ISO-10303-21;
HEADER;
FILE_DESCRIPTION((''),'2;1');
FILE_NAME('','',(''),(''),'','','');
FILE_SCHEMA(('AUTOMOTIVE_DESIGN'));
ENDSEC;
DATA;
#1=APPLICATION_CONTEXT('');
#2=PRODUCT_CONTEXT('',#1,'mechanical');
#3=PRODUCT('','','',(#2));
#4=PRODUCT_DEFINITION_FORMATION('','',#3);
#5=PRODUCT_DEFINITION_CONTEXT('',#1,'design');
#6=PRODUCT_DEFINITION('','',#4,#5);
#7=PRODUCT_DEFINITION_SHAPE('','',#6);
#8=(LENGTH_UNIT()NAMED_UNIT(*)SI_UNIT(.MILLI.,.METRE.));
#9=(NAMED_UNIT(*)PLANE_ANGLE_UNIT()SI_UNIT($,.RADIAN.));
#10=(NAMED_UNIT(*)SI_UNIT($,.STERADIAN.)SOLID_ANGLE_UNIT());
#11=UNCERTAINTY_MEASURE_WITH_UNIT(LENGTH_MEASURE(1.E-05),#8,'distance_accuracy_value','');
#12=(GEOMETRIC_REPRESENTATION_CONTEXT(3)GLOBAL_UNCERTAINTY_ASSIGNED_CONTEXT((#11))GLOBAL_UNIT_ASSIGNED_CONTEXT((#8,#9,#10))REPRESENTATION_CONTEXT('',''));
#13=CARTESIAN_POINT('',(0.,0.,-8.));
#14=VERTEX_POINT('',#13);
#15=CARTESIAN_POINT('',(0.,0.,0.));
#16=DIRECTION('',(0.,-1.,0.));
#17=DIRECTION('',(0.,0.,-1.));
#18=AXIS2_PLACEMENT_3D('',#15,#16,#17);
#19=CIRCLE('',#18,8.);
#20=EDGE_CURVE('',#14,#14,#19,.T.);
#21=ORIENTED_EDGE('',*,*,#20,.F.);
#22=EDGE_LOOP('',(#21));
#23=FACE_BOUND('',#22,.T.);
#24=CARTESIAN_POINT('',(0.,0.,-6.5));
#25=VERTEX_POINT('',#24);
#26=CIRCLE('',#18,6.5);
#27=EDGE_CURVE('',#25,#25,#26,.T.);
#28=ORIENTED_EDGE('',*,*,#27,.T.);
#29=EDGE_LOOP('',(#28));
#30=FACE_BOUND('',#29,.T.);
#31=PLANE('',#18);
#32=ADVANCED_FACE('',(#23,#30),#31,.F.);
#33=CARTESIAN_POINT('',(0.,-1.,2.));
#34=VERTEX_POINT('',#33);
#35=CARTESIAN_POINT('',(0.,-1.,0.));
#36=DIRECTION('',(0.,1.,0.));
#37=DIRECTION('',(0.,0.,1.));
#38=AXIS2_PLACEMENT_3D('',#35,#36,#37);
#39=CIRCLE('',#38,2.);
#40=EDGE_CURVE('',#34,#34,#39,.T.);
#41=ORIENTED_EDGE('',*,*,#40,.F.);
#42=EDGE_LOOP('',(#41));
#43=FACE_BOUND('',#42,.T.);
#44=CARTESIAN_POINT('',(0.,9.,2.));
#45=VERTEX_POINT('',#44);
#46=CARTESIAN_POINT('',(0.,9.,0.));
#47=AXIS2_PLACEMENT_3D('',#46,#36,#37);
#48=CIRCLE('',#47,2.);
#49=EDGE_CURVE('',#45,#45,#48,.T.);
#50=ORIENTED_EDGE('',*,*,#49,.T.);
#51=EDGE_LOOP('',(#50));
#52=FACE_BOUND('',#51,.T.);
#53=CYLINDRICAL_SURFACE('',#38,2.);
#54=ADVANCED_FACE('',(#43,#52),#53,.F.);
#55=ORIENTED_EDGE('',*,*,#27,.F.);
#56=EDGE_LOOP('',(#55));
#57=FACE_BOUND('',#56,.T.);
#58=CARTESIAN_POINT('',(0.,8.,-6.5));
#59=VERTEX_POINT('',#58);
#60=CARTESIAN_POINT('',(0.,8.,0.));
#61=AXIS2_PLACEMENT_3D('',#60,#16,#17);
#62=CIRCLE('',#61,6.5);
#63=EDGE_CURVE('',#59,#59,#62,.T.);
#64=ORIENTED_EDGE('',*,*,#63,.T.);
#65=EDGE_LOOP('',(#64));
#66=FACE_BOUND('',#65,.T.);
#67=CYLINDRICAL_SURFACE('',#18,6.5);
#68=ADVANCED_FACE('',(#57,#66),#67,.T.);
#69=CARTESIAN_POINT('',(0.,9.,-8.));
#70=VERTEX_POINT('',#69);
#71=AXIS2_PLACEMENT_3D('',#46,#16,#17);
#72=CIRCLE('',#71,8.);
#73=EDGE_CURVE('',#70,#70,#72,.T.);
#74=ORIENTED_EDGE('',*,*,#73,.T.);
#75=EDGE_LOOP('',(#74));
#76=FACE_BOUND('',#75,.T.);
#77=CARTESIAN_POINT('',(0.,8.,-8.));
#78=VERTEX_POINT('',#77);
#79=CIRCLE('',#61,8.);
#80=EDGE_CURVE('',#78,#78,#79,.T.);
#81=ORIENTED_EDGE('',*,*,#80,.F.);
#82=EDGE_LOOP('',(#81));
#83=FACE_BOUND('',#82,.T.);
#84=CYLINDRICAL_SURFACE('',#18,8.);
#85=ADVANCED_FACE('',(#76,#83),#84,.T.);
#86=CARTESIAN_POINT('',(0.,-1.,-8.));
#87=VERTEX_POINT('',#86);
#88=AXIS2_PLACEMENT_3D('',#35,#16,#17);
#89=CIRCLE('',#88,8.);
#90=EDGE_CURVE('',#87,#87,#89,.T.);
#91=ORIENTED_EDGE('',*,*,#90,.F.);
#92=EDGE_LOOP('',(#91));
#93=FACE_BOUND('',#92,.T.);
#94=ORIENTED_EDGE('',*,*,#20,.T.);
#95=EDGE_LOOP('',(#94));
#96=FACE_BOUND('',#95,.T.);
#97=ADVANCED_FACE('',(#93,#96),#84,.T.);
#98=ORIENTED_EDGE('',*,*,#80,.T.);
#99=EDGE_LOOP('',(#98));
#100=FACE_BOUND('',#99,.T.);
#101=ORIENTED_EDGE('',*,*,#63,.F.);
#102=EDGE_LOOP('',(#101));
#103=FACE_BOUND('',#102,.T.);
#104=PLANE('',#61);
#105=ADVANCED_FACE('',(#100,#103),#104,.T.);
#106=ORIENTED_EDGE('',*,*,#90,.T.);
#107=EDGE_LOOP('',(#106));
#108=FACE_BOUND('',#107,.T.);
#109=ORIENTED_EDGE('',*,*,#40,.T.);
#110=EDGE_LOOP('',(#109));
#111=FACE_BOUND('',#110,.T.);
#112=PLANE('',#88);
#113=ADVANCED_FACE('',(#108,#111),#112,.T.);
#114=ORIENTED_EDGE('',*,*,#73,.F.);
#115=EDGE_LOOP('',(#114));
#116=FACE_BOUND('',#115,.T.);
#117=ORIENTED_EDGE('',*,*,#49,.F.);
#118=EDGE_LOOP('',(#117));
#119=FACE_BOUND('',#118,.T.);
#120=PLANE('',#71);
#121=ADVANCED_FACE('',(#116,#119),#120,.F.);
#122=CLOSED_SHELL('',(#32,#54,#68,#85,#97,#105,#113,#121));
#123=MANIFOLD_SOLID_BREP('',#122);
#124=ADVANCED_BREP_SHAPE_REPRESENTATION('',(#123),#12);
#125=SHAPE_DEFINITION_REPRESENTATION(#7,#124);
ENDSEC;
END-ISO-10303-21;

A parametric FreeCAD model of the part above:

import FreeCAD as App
import Part
import Sketcher

doc = App.newDocument("Part")
body = doc.addObject("PartDesign::Body", "Body")

sketch1 = body.newObject("Sketcher::SketchObject", "Sketch")
sketch1.AttachmentSupport = (doc.getObject("XY_Plane"), [""])
sketch1.MapMode = "FlatFace"
sketch1.addGeometry([
    Part.LineSegment(App.Vector(0, 9, 0), App.Vector(-8, 9, 0)),
    Part.LineSegment(App.Vector(-8, 9, 0), App.Vector(-8, 8, 0)),
    Part.LineSegment(App.Vector(-8, 8, 0), App.Vector(-6.5, 8, 0)),
    Part.LineSegment(App.Vector(-6.5, 8, 0), App.Vector(-6.5, 0, 0)),
    Part.LineSegment(App.Vector(-6.5, 0, 0), App.Vector(-8, 0, 0)),
    Part.LineSegment(App.Vector(-8, 0, 0), App.Vector(-8, -1, 0)),
    Part.LineSegment(App.Vector(-8, -1, 0), App.Vector(0, -1, 0)),
    Part.LineSegment(App.Vector(0, -1, 0), App.Vector(0, 9, 0)),
], False)
sketch1.addConstraint([
    Sketcher.Constraint("Coincident", 0, 2, 1, 1),
    Sketcher.Constraint("Coincident", 1, 2, 2, 1),
    Sketcher.Constraint("Coincident", 2, 2, 3, 1),
    Sketcher.Constraint("Coincident", 3, 2, 4, 1),
    Sketcher.Constraint("Coincident", 4, 2, 5, 1),
    Sketcher.Constraint("Coincident", 5, 2, 6, 1),
    Sketcher.Constraint("Coincident", 6, 2, 7, 1),
    Sketcher.Constraint("Coincident", 7, 2, 0, 1),
    Sketcher.Constraint("Horizontal", 0),
    Sketcher.Constraint("Vertical", 1),
    Sketcher.Constraint("Horizontal", 2),
    Sketcher.Constraint("Vertical", 3),
    Sketcher.Constraint("Horizontal", 4),
    Sketcher.Constraint("Vertical", 5),
    Sketcher.Constraint("Horizontal", 6),
    Sketcher.Constraint("Vertical", 7),
    Sketcher.Constraint("PointOnObject", 3, 2, -1),
    Sketcher.Constraint("PointOnObject", 6, 2, -2),
    Sketcher.Constraint("Vertical", 1, 2, 4, 2),
    Sketcher.Constraint("Equal", 6, 3),
    Sketcher.Constraint("Equal", 1, 5),
    Sketcher.Constraint("DistanceX", 0, 2, 0, 1, 8.0),
    Sketcher.Constraint("DistanceY", 1, 2, 1, 1, 1.0),
    Sketcher.Constraint("DistanceX", 2, 1, 2, 2, 1.5),
])
revolution = body.newObject("PartDesign::Revolution", "Revolution")
revolution.Profile = sketch1
revolution.ReferenceAxis = (sketch1, ["V_Axis"])
revolution.Angle = 360

sketch2 = body.newObject("Sketcher::SketchObject", "Sketch001")
sketch2.AttachmentSupport = (doc.getObject("XZ_Plane"), [""])
sketch2.MapMode = "FlatFace"
sketch2.AttachmentOffset = App.Placement(App.Vector(0, 0, -9), App.Rotation())
sketch2.addGeometry(Part.Circle(App.Vector(0, 0, 0), App.Vector(0, 0, 1), 2), False)
sketch2.addConstraint([
    Sketcher.Constraint("Coincident", 0, 3, -1, 1),
    Sketcher.Constraint("Diameter", 0, 4.0),
])
pocket1 = body.newObject("PartDesign::Pocket", "Pocket")
pocket1.Profile = sketch2
pocket1.Length = 10
pocket1.Reversed = True

doc.recompute()
